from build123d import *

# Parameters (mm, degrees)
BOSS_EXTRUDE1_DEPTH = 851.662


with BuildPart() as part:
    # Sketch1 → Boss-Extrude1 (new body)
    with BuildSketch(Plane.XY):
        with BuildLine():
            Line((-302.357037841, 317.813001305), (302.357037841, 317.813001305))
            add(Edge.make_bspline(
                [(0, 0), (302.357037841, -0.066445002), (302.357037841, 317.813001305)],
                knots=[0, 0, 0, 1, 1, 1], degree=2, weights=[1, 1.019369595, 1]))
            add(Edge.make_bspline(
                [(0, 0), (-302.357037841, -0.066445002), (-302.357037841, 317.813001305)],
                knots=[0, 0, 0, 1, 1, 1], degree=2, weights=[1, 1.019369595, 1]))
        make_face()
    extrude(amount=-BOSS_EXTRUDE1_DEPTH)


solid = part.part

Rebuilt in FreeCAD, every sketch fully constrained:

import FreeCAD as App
import Part
import Sketcher
from FreeCAD import Vector
Q = App.Units.Quantity

doc = App.newDocument("Part")
body = doc.addObject("PartDesign::Body", "Body")

sketch1 = doc.addObject("Sketcher::SketchObject", "Sketch")
body.addObject(sketch1)
sketch1.AttachmentSupport = (doc.XY_Plane, [""])
sketch1.MapMode = "FlatFace"
sketch1.addGeometry([
    Part.LineSegment(Vector(302.357038, 317.813001, 0), Vector(-302.357038, 317.813001, 0)),
    Part.BSplineCurve([Vector(0, 0, 0), Vector(-302.357038, -0.066445, 0), Vector(-302.357038, 317.813001, 0)], [3, 3], [0, 1], False, 2, [1, 1.019369595, 1], False),
    Part.BSplineCurve([Vector(0, 0, 0), Vector(302.357038, -0.066445, 0), Vector(302.357038, 317.813001, 0)], [3, 3], [0, 1], False, 2, [1, 1.019369595, 1], False),
], False)
sketch1.addConstraint([
    Sketcher.Constraint("Block", 1),
    Sketcher.Constraint("Block", 2),
    Sketcher.Constraint("Coincident", 0, 2, 1, 2),
    Sketcher.Constraint("Coincident", 2, 2, 0, 1),
])
pad1 = doc.addObject("PartDesign::Pad", "Pad")
body.addObject(pad1)
pad1.Profile = sketch1
pad1.Length = Q("33.53 in")
pad1.Reversed = True

doc.recompute()
